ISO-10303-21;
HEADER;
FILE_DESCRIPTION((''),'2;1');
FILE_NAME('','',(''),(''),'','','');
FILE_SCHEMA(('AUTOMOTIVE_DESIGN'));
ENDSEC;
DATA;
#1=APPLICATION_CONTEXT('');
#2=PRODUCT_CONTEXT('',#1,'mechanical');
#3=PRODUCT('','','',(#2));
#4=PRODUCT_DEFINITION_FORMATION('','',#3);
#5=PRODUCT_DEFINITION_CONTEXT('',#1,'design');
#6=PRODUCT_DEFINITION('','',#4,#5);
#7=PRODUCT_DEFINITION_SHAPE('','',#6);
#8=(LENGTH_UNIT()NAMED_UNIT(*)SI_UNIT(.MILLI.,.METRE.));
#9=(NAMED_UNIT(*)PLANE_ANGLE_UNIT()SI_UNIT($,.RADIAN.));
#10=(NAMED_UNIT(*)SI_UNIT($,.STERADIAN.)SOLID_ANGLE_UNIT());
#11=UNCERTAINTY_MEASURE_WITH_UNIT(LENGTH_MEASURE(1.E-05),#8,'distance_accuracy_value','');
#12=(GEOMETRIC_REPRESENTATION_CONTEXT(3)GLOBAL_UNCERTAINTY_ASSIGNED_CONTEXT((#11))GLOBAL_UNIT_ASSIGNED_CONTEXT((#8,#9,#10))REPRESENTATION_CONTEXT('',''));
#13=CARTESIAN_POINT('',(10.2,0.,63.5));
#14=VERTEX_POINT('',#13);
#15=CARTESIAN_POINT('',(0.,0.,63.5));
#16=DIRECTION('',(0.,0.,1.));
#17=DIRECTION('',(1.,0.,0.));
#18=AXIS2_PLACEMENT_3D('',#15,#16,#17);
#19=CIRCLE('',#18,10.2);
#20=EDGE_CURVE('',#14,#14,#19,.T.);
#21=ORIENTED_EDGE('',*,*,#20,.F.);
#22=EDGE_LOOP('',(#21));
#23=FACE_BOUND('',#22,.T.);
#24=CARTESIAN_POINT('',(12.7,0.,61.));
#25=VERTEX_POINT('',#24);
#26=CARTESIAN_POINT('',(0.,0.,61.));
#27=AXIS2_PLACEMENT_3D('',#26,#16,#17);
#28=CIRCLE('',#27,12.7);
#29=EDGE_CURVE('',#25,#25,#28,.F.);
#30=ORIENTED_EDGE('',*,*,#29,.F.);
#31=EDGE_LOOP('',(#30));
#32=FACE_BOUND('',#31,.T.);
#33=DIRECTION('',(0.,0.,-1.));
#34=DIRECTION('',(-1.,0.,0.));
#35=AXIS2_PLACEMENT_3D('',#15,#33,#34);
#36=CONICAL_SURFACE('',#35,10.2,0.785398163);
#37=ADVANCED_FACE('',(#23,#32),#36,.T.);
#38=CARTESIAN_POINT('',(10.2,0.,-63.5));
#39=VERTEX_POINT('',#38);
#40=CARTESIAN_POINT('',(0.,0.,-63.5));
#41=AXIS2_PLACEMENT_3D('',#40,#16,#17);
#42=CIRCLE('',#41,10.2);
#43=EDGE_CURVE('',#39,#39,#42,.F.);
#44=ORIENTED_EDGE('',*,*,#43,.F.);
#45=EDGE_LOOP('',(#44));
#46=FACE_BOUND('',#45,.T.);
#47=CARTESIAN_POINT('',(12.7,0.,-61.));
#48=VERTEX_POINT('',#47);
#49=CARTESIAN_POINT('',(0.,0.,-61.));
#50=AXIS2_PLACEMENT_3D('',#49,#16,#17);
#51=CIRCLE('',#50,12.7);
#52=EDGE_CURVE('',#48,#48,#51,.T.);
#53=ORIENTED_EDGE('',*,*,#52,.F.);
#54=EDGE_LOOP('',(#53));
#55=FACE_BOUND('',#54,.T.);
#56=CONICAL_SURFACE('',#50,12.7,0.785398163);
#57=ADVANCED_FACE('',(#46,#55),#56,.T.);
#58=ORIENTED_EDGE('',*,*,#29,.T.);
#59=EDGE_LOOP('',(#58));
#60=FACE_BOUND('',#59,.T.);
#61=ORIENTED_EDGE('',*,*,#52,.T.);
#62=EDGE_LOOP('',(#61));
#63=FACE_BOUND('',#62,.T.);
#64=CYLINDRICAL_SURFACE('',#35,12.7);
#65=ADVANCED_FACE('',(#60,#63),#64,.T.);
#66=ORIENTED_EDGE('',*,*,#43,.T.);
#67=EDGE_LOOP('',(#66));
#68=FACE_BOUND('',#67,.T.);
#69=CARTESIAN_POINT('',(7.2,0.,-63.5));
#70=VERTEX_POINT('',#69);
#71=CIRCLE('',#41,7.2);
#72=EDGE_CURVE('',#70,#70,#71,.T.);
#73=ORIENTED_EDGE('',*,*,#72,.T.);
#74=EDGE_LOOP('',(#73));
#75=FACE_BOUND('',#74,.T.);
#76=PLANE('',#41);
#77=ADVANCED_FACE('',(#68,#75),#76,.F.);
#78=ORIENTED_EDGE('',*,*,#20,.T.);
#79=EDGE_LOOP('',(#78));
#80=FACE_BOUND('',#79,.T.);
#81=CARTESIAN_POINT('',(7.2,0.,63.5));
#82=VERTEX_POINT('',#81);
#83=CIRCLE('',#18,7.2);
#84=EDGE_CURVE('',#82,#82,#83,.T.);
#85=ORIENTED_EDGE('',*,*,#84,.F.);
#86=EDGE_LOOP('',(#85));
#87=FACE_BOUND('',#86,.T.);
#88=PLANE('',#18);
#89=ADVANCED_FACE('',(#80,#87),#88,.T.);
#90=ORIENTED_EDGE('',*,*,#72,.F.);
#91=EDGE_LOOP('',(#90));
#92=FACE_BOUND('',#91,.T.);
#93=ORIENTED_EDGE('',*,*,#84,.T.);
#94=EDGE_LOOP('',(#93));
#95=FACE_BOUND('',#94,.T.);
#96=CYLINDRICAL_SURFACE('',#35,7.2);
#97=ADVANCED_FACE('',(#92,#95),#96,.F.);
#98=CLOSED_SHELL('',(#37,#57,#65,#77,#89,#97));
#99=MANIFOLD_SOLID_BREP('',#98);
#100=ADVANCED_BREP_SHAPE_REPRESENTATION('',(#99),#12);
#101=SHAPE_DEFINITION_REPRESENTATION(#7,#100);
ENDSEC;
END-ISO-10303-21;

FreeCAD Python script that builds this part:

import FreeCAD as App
import Part
import Sketcher
Q = App.Units.Quantity


def edges_at(feature, points):
    """Names of the edges that pass closest to the given points."""
    edges = feature.Shape.Edges
    near = lambda p: min(range(len(edges)), key=lambda i: edges[i].distToShape(Part.Vertex(*p))[0])
    return sorted({f"Edge{near(p) + 1}" for p in points})

doc = App.newDocument("Part")
params = doc.addObject("Spreadsheet::Sheet", "Params")
for row, (alias, value) in enumerate([
    ("sketch1_diameter", "25.4 mm"),
    ("sketch1_diameter2", "14.4 mm"),
    ("pad1_length", "127 mm"),
    ("chamfer_size", "2.5 mm"),
], start=1):
    params.set(f"A{row}", alias)
    params.set(f"B{row}", "=" + value)
    params.setAlias(f"B{row}", alias)

body = doc.addObject("PartDesign::Body", "Body")

# Sketch on XY plane
sketch1 = body.newObject("Sketcher::SketchObject", "Sketch")
sketch1.AttachmentSupport = (doc.getObject("XY_Plane"), [""])
sketch1.MapMode = "FlatFace"
sketch1.addGeometry(Part.Circle(App.Vector(0, 0, 0), App.Vector(0, 0, 1), 13), False)
sketch1.addGeometry(Part.Circle(App.Vector(0, 0, 0), App.Vector(0, 0, 1), 7), False)
sketch1.addConstraint(Sketcher.Constraint("Coincident", 0, 3, -1, 1))
sketch1.addConstraint(Sketcher.Constraint("Coincident", 1, 3, -1, 1))
sketch1.addConstraint(Sketcher.Constraint("Diameter", 0, Q("25.4 mm")))
sketch1.addConstraint(Sketcher.Constraint("Diameter", 1, Q("14.4 mm")))
sketch1.setExpression("Constraints[2]", "Params.sketch1_diameter")
sketch1.setExpression("Constraints[3]", "Params.sketch1_diameter2")
pad1 = body.newObject("PartDesign::Pad", "Pad")
pad1.Profile = sketch1
pad1.setExpression("Length", "Params.pad1_length")
pad1.Midplane = True
doc.recompute()

chamfer = body.newObject("PartDesign::Chamfer", "Chamfer")
chamfer.Base = (pad1, edges_at(pad1, [(-12.7, 0, -63.5), (-12.7, 0, 63.5)]))
chamfer.setExpression("Size", "Params.chamfer_size")

doc.recompute()
